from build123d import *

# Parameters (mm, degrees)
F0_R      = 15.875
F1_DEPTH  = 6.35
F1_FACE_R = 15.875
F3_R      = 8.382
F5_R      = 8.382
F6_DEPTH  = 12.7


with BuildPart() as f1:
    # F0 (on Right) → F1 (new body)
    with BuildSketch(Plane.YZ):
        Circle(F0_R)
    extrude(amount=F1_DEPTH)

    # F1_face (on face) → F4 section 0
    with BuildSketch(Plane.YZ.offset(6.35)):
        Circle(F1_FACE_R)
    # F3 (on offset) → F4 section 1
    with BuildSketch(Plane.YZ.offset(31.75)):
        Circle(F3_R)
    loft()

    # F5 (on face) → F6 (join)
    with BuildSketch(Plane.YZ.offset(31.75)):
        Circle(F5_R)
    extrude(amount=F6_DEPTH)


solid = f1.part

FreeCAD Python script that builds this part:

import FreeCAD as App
import Part
import Sketcher
Q = App.Units.Quantity

doc = App.newDocument("Part")
body = doc.addObject("PartDesign::Body", "Body")

sketch1 = doc.addObject("Sketcher::SketchObject", "Sketch")
body.addObject(sketch1)
sketch1.AttachmentSupport = (doc.YZ_Plane, [""])
sketch1.MapMode = "FlatFace"
sketch1.addGeometry(Part.Circle(App.Vector(0, 0, 0), App.Vector(0, 0, 1), 16), False)
sketch1.addConstraint(Sketcher.Constraint("Coincident", 0, 3, -1, 1))
sketch1.addConstraint(Sketcher.Constraint("Diameter", 0, Q("1.25 in")))
pad1 = doc.addObject("PartDesign::Pad", "Pad")
body.addObject(pad1)
pad1.Profile = sketch1
pad1.Length = Q("0.25 in")

sketch2 = doc.addObject("Sketcher::SketchObject", "Sketch001")
body.addObject(sketch2)
sketch2.AttachmentSupport = (doc.YZ_Plane, [""])
sketch2.MapMode = "FlatFace"
sketch2.AttachmentOffset = App.Placement(App.Vector(0, 0, 0.25 * 25.4), App.Rotation())
sketch2.addGeometry(Part.Circle(App.Vector(0, 0, 0), App.Vector(0, 0, 1), 16), False)
sketch2.addConstraint(Sketcher.Constraint("Coincident", 0, 3, -1, 1))
sketch2.addConstraint(Sketcher.Constraint("Diameter", 0, Q("1.25 in")))

sketch3 = doc.addObject("Sketcher::SketchObject", "Sketch002")
body.addObject(sketch3)
sketch3.AttachmentSupport = (doc.YZ_Plane, [""])
sketch3.MapMode = "FlatFace"
sketch3.AttachmentOffset = App.Placement(App.Vector(0, 0, 1.25 * 25.4), App.Rotation())
sketch3.addGeometry(Part.Circle(App.Vector(0, 0, 0), App.Vector(0, 0, 1), 8), False)
sketch3.addConstraint(Sketcher.Constraint("Coincident", 0, 3, -1, 1))
sketch3.addConstraint(Sketcher.Constraint("Diameter", 0, Q("0.66 in")))

additiveloft = doc.addObject("PartDesign::AdditiveLoft", "AdditiveLoft")
body.addObject(additiveloft)
additiveloft.Profile = sketch2
additiveloft.Sections = [sketch3]

sketch4 = doc.addObject("Sketcher::SketchObject", "Sketch003")
body.addObject(sketch4)
sketch4.AttachmentSupport = (doc.YZ_Plane, [""])
sketch4.MapMode = "FlatFace"
sketch4.AttachmentOffset = App.Placement(App.Vector(0, 0, 1.25 * 25.4), App.Rotation())
sketch4.addGeometry(Part.Circle(App.Vector(0, 0, 0), App.Vector(0, 0, 1), 8), False)
sketch4.addConstraint(Sketcher.Constraint("Coincident", 0, 3, -1, 1))
sketch4.addConstraint(Sketcher.Constraint("Diameter", 0, Q("0.66 in")))
pad2 = doc.addObject("PartDesign::Pad", "Pad001")
body.addObject(pad2)
pad2.Profile = sketch4
pad2.Length = Q("0.5 in")

doc.recompute()
